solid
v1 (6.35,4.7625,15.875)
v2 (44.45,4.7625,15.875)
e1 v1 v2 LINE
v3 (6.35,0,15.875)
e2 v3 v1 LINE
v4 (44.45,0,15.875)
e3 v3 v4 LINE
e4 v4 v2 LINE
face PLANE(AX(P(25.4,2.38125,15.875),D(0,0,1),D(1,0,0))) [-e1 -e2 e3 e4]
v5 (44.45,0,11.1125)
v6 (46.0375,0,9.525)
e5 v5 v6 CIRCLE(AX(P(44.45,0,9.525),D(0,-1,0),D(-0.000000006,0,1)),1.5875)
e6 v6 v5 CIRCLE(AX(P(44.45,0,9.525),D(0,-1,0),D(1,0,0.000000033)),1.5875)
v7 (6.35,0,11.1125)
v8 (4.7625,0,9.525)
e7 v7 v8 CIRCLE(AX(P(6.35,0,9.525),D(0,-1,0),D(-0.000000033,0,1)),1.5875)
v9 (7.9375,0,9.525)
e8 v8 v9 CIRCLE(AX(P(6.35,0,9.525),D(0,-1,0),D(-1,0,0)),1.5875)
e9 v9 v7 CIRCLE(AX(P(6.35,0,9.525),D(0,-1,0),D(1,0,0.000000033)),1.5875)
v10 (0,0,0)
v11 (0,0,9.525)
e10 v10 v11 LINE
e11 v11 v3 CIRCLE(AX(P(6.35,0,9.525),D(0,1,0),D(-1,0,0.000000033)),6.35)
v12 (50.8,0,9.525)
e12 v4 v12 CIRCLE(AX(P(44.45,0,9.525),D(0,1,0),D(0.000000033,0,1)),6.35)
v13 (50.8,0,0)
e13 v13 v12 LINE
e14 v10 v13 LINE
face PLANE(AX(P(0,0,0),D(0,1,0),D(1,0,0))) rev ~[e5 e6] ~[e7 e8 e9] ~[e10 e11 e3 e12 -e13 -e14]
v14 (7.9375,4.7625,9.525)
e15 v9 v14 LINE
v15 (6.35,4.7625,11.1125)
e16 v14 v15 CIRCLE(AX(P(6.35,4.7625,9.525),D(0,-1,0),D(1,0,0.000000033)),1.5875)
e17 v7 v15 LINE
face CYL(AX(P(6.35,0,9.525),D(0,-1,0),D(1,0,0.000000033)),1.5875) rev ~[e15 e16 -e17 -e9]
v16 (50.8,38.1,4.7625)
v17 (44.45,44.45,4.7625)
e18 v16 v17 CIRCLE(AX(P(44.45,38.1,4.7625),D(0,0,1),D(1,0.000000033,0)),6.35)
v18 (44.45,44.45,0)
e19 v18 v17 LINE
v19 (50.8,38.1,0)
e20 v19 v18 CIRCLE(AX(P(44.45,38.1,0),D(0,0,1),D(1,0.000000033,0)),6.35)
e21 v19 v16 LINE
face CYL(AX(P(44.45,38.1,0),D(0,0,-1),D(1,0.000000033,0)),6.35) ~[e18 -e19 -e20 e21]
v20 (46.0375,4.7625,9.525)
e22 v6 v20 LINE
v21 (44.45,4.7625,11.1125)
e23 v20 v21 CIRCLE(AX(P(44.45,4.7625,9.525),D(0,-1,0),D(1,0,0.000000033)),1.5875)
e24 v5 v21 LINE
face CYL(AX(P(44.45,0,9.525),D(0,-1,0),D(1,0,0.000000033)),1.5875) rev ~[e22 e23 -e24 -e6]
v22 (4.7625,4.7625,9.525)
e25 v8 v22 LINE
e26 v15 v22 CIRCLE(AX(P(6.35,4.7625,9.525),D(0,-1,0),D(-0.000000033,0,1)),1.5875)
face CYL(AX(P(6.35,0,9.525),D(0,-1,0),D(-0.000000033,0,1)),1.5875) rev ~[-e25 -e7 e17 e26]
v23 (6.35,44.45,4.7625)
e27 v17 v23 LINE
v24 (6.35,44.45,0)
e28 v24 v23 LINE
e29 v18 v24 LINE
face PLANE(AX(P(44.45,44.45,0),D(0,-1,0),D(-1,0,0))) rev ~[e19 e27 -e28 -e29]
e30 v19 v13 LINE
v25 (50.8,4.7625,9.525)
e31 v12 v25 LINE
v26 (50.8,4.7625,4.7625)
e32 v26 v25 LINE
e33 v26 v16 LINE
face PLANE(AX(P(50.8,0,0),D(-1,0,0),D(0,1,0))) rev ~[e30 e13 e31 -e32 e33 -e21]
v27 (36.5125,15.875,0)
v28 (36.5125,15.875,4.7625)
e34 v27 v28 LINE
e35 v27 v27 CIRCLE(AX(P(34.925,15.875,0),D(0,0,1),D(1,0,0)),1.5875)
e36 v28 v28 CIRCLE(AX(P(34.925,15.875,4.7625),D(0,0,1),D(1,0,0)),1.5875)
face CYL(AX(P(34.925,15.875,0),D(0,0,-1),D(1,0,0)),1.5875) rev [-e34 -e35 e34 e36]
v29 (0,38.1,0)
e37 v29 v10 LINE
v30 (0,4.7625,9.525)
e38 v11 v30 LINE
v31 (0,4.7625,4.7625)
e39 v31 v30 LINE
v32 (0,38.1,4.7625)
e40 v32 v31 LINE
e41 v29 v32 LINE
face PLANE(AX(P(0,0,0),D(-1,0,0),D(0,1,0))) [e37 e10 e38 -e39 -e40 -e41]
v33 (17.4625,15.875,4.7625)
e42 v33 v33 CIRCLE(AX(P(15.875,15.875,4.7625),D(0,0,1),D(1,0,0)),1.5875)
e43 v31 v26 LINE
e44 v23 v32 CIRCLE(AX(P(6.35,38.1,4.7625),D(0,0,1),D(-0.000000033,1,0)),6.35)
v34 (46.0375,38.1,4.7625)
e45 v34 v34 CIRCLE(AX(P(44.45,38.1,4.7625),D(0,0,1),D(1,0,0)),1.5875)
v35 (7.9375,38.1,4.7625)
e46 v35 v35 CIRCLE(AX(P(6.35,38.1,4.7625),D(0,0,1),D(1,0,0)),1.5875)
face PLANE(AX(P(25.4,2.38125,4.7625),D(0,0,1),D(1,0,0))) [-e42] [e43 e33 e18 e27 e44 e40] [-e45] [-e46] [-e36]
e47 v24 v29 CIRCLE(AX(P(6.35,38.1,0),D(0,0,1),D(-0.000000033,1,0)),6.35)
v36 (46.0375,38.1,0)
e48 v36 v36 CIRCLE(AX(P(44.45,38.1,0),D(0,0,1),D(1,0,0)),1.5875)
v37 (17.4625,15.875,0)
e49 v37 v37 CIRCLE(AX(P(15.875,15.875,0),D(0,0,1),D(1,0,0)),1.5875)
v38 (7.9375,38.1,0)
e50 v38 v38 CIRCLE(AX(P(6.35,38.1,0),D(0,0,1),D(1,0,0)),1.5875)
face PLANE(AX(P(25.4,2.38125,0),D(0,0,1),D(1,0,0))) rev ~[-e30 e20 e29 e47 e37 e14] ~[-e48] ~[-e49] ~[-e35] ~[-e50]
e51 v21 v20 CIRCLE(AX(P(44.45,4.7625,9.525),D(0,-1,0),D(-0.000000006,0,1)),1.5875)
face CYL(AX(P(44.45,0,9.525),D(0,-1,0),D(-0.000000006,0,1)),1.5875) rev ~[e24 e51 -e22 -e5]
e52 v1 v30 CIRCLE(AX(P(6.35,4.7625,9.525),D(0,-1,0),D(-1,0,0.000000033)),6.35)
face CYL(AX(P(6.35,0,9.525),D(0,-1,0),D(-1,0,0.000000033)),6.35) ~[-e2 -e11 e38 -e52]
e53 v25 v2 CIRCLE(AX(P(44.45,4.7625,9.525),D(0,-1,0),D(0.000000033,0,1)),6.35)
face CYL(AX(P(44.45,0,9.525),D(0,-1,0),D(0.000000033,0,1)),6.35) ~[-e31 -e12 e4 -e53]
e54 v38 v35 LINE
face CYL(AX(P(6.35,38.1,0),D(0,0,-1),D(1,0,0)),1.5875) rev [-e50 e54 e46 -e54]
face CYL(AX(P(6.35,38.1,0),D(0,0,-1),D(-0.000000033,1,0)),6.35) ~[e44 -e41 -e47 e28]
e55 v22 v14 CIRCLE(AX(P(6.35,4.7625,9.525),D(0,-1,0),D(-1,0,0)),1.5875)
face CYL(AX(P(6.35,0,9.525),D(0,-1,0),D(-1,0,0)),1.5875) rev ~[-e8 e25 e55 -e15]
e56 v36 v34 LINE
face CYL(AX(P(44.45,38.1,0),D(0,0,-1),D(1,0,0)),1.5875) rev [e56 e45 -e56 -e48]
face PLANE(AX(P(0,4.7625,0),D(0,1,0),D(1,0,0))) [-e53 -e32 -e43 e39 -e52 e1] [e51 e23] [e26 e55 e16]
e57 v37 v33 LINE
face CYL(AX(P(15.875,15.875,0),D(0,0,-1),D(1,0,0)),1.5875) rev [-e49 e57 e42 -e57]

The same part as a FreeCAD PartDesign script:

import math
import FreeCAD as App
import Part
import Sketcher

V = App.Vector
Q = App.Units.Quantity

doc = App.newDocument("Part")
body = doc.addObject("PartDesign::Body", "Body")

# Sketch on XY plane
sketch1 = body.newObject("Sketcher::SketchObject", "Sketch")
sketch1.AttachmentSupport = (doc.getObject("XY_Plane"), [""])
sketch1.MapMode = "FlatFace"
sketch1.addGeometry(Part.LineSegment(V(0, 4.8, 0), V(0, 0, 0)), False)
sketch1.addGeometry(Part.LineSegment(V(0, 0, 0), V(50.8, 0, 0)), False)
sketch1.addGeometry(Part.LineSegment(V(50.8, 0, 0), V(50.8, 4.8, 0)), False)
sketch1.addGeometry(Part.LineSegment(V(50.8, 4.8, 0), V(0, 4.8, 0)), False)
sketch1.addConstraint(Sketcher.Constraint("Coincident", 0, 2, 1, 1))
sketch1.addConstraint(Sketcher.Constraint("Coincident", 1, 2, 2, 1))
sketch1.addConstraint(Sketcher.Constraint("Coincident", 2, 2, 3, 1))
sketch1.addConstraint(Sketcher.Constraint("Coincident", 3, 2, 0, 1))
sketch1.addConstraint(Sketcher.Constraint("Vertical", 0))
sketch1.addConstraint(Sketcher.Constraint("Horizontal", 1))
sketch1.addConstraint(Sketcher.Constraint("Vertical", 2))
sketch1.addConstraint(Sketcher.Constraint("Horizontal", 3))
sketch1.addConstraint(Sketcher.Constraint("Coincident", 0, 2, -1, 1))
sketch1.addConstraint(Sketcher.Constraint("DistanceX", 1, 1, 1, 2, Q("2 in")))
sketch1.addConstraint(Sketcher.Constraint("DistanceY", 0, 2, 0, 1, Q("0.1875 in")))
pad1 = body.newObject("PartDesign::Pad", "Pad")
pad1.Profile = sketch1
pad1.Length = Q("0.625 in")

# Sketch on XY plane
sketch2 = body.newObject("Sketcher::SketchObject", "Sketch001")
sketch2.AttachmentSupport = (doc.getObject("XY_Plane"), [""])
sketch2.MapMode = "FlatFace"
sketch2.addGeometry(Part.LineSegment(V(0, 0, 0), V(50.8, 0, 0)), False)
sketch2.addGeometry(Part.LineSegment(V(50.8, 0, 0), V(50.8, 38.1, 0)), False)
sketch2.addGeometry(Part.ArcOfCircle(Part.Circle(V(44.4, 38.1, 0), V(0, 0, 1), 6.4), math.radians(0), math.radians(90)), False)
sketch2.addGeometry(Part.LineSegment(V(44.5, 44.5, 0), V(6.3, 44.5, 0)), False)
sketch2.addGeometry(Part.ArcOfCircle(Part.Circle(V(6.4, 38.1, 0), V(0, 0, 1), 6.4), math.radians(90), math.radians(180)), False)
sketch2.addGeometry(Part.LineSegment(V(0, 38.1, 0), V(0, 0, 0)), False)
sketch2.addGeometry(Part.Circle(V(15.9, 15.9, 0), V(0, 0, 1), 1.6), False)
sketch2.addGeometry(Part.Circle(V(34.9, 15.9, 0), V(0, 0, 1), 1.6), False)
sketch2.addGeometry(Part.Circle(V(6.3, 38.1, 0), V(0, 0, 1), 1.6), False)
sketch2.addGeometry(Part.Circle(V(44.5, 38.1, 0), V(0, 0, 1), 1.6), False)
sketch2.addConstraint(Sketcher.Constraint("Coincident", 0, 2, 1, 1))
sketch2.addConstraint(Sketcher.Constraint("Tangent", 1, 2, 2, 1))
sketch2.addConstraint(Sketcher.Constraint("Tangent", 2, 2, 3, 1))
sketch2.addConstraint(Sketcher.Constraint("Tangent", 3, 2, 4, 1))
sketch2.addConstraint(Sketcher.Constraint("Tangent", 4, 2, 5, 1))
sketch2.addConstraint(Sketcher.Constraint("Coincident", 5, 2, 0, 1))
sketch2.addConstraint(Sketcher.Constraint("Horizontal", 0))
sketch2.addConstraint(Sketcher.Constraint("Vertical", 1))
sketch2.addConstraint(Sketcher.Constraint("Horizontal", 3))
sketch2.addConstraint(Sketcher.Constraint("Vertical", 5))
sketch2.addConstraint(Sketcher.Constraint("Coincident", 5, 2, -1, 1))
sketch2.addConstraint(Sketcher.Constraint("Coincident", 8, 3, 4, 3))
sketch2.addConstraint(Sketcher.Constraint("Coincident", 9, 3, 2, 3))
sketch2.addConstraint(Sketcher.Constraint("Equal", 2, 4))
sketch2.addConstraint(Sketcher.Constraint("Equal", 6, 7))
sketch2.addConstraint(Sketcher.Constraint("Equal", 7, 8))
sketch2.addConstraint(Sketcher.Constraint("Equal", 8, 9))
sketch2.addConstraint(Sketcher.Constraint("Horizontal", 6, 3, 7, 3))
sketch2.addConstraint(Sketcher.Constraint("Equal", 3, 1))
sketch2.addConstraint(Sketcher.Constraint("DistanceX", 0, 1, 0, 2, Q("2 in")))
sketch2.addConstraint(Sketcher.Constraint("Radius", 2, Q("0.25 in")))
sketch2.addConstraint(Sketcher.Constraint("Diameter", 6, Q("0.125 in")))
sketch2.addConstraint(Sketcher.Constraint("DistanceX", 6, 3, 7, 3, Q("0.75 in")))
sketch2.addConstraint(Sketcher.Constraint("DistanceX", -1, 1, 6, 3, Q("0.625 in")))
sketch2.addConstraint(Sketcher.Constraint("DistanceY", -1, 1, 6, 3, Q("0.625 in")))
pad2 = body.newObject("PartDesign::Pad", "Pad001")
pad2.Profile = sketch2
pad2.Length = Q("0.1875 in")

# Sketch on XZ plane
sketch3 = body.newObject("Sketcher::SketchObject", "Sketch002")
sketch3.AttachmentSupport = (doc.getObject("XZ_Plane"), [""])
sketch3.MapMode = "FlatFace"
sketch3.addGeometry(Part.ArcOfCircle(Part.Circle(V(6.4, 9.5, 0), V(0, 0, 1), 6.4), math.radians(90), math.radians(180)), False)
sketch3.addGeometry(Part.LineSegment(V(6.3, 15.9, 0), V(0, 15.9, 0)), False)
sketch3.addGeometry(Part.LineSegment(V(0, 15.9, 0), V(0, 9.5, 0)), False)
sketch3.addGeometry(Part.ArcOfCircle(Part.Circle(V(6.3, 9.5, 0), V(0, 0, 1), 1.6), math.radians(180), math.radians(360)), False)
sketch3.addGeometry(Part.ArcOfCircle(Part.Circle(V(6.3, 9.5, 0), V(0, 0, 1), 1.6), math.radians(0), math.radians(90)), False)
sketch3.addGeometry(Part.ArcOfCircle(Part.Circle(V(6.4, 9.5, 0), V(0, 0, 1), 1.6), math.radians(90), math.radians(180)), False)
sketch3.addGeometry(Part.LineSegment(V(50.8, 15.9, 0), V(44.5, 15.9, 0)), False)
sketch3.addGeometry(Part.ArcOfCircle(Part.Circle(V(44.4, 9.5, 0), V(0, 0, 1), 6.4), math.radians(0), math.radians(90)), False)
sketch3.addGeometry(Part.LineSegment(V(50.8, 9.5, 0), V(50.8, 15.9, 0)), False)
sketch3.addGeometry(Part.ArcOfCircle(Part.Circle(V(44.4, 9.5, 0), V(0, 0, 1), 1.6), math.radians(0), math.radians(90)), False)
sketch3.addGeometry(Part.ArcOfCircle(Part.Circle(V(44.5, 9.5, 0), V(0, 0, 1), 1.6), math.radians(90), math.radians(360)), False)
sketch3.addConstraint(Sketcher.Constraint("Tangent", 0, 1, 1, 1))
sketch3.addConstraint(Sketcher.Constraint("Coincident", 1, 2, 2, 1))
sketch3.addConstraint(Sketcher.Constraint("Tangent", 2, 2, 0, 2))
sketch3.addConstraint(Sketcher.Constraint("Tangent", 3, 2, 4, 1))
sketch3.addConstraint(Sketcher.Constraint("Tangent", 4, 2, 5, 1))
sketch3.addConstraint(Sketcher.Constraint("Tangent", 5, 2, 3, 1))
sketch3.addConstraint(Sketcher.Constraint("Tangent", 6, 2, 7, 2))
sketch3.addConstraint(Sketcher.Constraint("Tangent", 7, 1, 8, 1))
sketch3.addConstraint(Sketcher.Constraint("Coincident", 8, 2, 6, 1))
sketch3.addConstraint(Sketcher.Constraint("Tangent", 9, 1, 10, 2))
sketch3.addConstraint(Sketcher.Constraint("Coincident", 10, 1, 9, 2))
sketch3.addConstraint(Sketcher.Constraint("Horizontal", 1))
sketch3.addConstraint(Sketcher.Constraint("Vertical", 2))
sketch3.addConstraint(Sketcher.Constraint("Horizontal", 6))
sketch3.addConstraint(Sketcher.Constraint("Vertical", 8))
sketch3.addConstraint(Sketcher.Constraint("Coincident", 3, 3, 0, 3))
sketch3.addConstraint(Sketcher.Constraint("Coincident", 9, 3, 7, 3))
sketch3.addConstraint(Sketcher.Constraint("Equal", 0, 7))
sketch3.addConstraint(Sketcher.Constraint("Equal", 5, 9))
sketch3.addConstraint(Sketcher.Constraint("PointOnObject", 1, 2, -2))
sketch3.addConstraint(Sketcher.Constraint("Horizontal", 5, 3, 7, 3))
sketch3.addConstraint(Sketcher.Constraint("Horizontal", 2, 2, 3, 2))
sketch3.addConstraint(Sketcher.Constraint("Horizontal", 3, 2, 5, 2))
sketch3.addConstraint(Sketcher.Constraint("Horizontal", 7, 1, 9, 1))
sketch3.addConstraint(Sketcher.Constraint("Vertical", 0, 1, 4, 2))
sketch3.addConstraint(Sketcher.Constraint("Vertical", 6, 2, 10, 1))
sketch3.addConstraint(Sketcher.Constraint("Radius", 0, Q("0.25 in")))
sketch3.addConstraint(Sketcher.Constraint("DistanceX", -1, 1, 7, 1, Q("2 in")))
sketch3.addConstraint(Sketcher.Constraint("Radius", 3, Q("0.0625 in")))
sketch3.addConstraint(Sketcher.Constraint("DistanceY", -1, 1, 0, 3, Q("0.375 in")))
pocket1 = body.newObject("PartDesign::Pocket", "Pocket")
pocket1.Profile = sketch3
pocket1.Length = Q("1 in")

doc.recompute()
